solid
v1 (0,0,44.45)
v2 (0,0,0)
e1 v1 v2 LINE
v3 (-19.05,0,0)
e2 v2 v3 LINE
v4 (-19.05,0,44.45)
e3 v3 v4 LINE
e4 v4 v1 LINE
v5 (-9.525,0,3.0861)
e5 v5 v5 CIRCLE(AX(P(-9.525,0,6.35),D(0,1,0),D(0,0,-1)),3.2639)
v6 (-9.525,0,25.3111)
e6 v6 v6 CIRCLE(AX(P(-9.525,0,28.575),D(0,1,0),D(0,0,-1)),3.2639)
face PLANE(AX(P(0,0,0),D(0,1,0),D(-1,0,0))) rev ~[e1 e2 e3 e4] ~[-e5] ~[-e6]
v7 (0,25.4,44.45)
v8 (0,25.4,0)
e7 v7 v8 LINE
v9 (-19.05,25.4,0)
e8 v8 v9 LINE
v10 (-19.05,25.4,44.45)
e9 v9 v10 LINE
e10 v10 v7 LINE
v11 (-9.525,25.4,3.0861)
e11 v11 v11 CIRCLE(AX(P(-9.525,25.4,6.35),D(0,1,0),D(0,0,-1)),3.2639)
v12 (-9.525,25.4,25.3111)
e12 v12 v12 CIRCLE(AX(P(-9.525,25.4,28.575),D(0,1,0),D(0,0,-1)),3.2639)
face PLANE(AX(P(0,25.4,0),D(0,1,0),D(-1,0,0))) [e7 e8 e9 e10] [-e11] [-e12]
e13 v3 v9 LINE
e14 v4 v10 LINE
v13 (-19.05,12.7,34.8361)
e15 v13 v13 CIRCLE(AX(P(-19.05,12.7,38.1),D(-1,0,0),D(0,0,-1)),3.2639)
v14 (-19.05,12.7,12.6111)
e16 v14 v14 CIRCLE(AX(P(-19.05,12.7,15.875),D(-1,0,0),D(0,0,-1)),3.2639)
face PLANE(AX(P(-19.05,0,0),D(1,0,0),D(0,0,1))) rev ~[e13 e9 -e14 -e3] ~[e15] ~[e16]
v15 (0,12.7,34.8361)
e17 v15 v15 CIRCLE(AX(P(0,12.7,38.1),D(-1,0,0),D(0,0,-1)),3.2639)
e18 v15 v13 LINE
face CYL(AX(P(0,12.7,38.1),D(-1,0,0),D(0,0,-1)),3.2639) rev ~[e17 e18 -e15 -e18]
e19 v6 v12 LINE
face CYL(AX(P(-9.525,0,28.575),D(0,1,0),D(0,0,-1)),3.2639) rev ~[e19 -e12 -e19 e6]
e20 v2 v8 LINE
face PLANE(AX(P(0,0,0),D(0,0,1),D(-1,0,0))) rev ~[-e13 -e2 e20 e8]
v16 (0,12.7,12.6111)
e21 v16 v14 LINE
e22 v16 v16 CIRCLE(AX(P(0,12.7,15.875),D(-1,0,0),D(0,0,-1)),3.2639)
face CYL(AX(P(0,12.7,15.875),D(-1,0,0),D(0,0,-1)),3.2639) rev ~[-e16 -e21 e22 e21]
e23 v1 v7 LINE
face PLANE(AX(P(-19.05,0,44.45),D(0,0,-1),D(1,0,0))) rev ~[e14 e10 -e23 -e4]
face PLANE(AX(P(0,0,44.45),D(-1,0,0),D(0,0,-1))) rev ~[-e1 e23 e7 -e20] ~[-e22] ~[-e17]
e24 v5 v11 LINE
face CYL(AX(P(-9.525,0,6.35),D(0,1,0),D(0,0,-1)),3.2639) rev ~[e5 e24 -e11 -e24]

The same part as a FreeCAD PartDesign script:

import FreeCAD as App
import Part
import Sketcher
Q = App.Units.Quantity


def add_polygon(sketch, points):
    """Adds a closed chain of lines whose ends are joined by coincident constraints."""
    first, n = sketch.GeometryCount, len(points)
    for a, b in zip(points, points[1:] + points[:1]):
        sketch.addGeometry(Part.LineSegment(App.Vector(*a, 0), App.Vector(*b, 0)), False)
    for i in range(n):
        sketch.addConstraint(Sketcher.Constraint("Coincident", first + i, 2, first + (i + 1) % n, 1))

doc = App.newDocument("Part")
params = doc.addObject("Spreadsheet::Sheet", "Params")
for row, (alias, value) in enumerate([
    ("sketch1_width", "0.75 in"),
    ("sketch1_height", "1.75 in"),
    ("pad1_length", "1 in"),
    ("sketch2_diameter", "0.257 in"),
    ("hole_diameter", "0.257 in"),
    ("hole_depth", "2 in"),
    ("sketch3_diameter", "0.257 in"),
    ("hole2_diameter", "0.257 in"),
    ("hole2_depth", "2 in"),
    ("sketch4_diameter", "0.257 in"),
    ("hole3_diameter", "0.257 in"),
    ("hole3_depth", "2 in"),
    ("sketch5_diameter", "0.257 in"),
    ("hole4_diameter", "0.257 in"),
    ("hole4_depth", "2 in"),
], start=1):
    params.set(f"A{row}", alias)
    params.set(f"B{row}", "=" + value)
    params.setAlias(f"B{row}", alias)

body = doc.addObject("PartDesign::Body", "Body")

# Sketch on XZ plane
sketch1 = doc.addObject("Sketcher::SketchObject", "Sketch")
body.addObject(sketch1)
sketch1.AttachmentSupport = (doc.XZ_Plane, [""])
sketch1.MapMode = "FlatFace"
add_polygon(sketch1, [(0, 44.45), (0, 0), (-19.05, 0), (-19.05, 44.45)])  # lines 0-3
sketch1.addConstraint([
    Sketcher.Constraint("Vertical", 0),
    Sketcher.Constraint("Horizontal", 1),
    Sketcher.Constraint("Vertical", 2),
    Sketcher.Constraint("Horizontal", 3),
    Sketcher.Constraint("Coincident", 0, 2, -1, 1),
    Sketcher.Constraint("DistanceX", 1, 2, 1, 1, Q("0.75 in")),
    Sketcher.Constraint("DistanceY", 0, 2, 0, 1, Q("1.75 in")),
])
sketch1.setExpression("Constraints[9]", "Params.sketch1_width")
sketch1.setExpression("Constraints[10]", "Params.sketch1_height")
pad1 = doc.addObject("PartDesign::Pad", "Pad")
body.addObject(pad1)
pad1.Profile = sketch1
pad1.setExpression("Length", "Params.pad1_length")
pad1.Reversed = True

# Sketch on YZ plane
sketch2 = doc.addObject("Sketcher::SketchObject", "Sketch001")
body.addObject(sketch2)
sketch2.AttachmentSupport = (doc.YZ_Plane, [""])
sketch2.MapMode = "FlatFace"
sketch2.addGeometry(Part.Circle(App.Vector(12.7, 38.1, 0), App.Vector(0, 0, 1), 3.2639), False)
sketch2.addConstraint([
    Sketcher.Constraint("Diameter", 0, Q("0.257 in")),
    Sketcher.Constraint("DistanceX", -1, 1, 0, 3, Q("0.5 in")),
    Sketcher.Constraint("DistanceY", -1, 1, 0, 3, Q("1.5 in")),
])
sketch2.setExpression("Constraints[0]", "Params.sketch2_diameter")
doc.recompute()
hole = doc.addObject("PartDesign::Hole", "Hole")
body.addObject(hole)
hole.Profile = sketch2
hole.ThreadType = "None"
hole.setExpression("Diameter", "Params.hole_diameter")
hole.DepthType = "Dimension"
hole.setExpression("Depth", "Params.hole_depth")
hole.DrillPoint = "Angled"
hole.DrillPointAngle = 118

# Sketch on XZ plane
sketch3 = doc.addObject("Sketcher::SketchObject", "Sketch002")
body.addObject(sketch3)
sketch3.AttachmentSupport = (doc.XZ_Plane, [""])
sketch3.MapMode = "FlatFace"
sketch3.addGeometry(Part.Circle(App.Vector(-9.525, 28.575, 0), App.Vector(0, 0, 1), 3.2639), False)
sketch3.addConstraint([
    Sketcher.Constraint("Diameter", 0, Q("0.257 in")),
    Sketcher.Constraint("DistanceX", 0, 3, -1, 1, Q("0.375 in")),
    Sketcher.Constraint("DistanceY", -1, 1, 0, 3, Q("1.125 in")),
])
sketch3.setExpression("Constraints[0]", "Params.sketch3_diameter")
doc.recompute()
hole2 = doc.addObject("PartDesign::Hole", "Hole001")
body.addObject(hole2)
hole2.Profile = sketch3
hole2.ThreadType = "None"
hole2.setExpression("Diameter", "Params.hole2_diameter")
hole2.DepthType = "Dimension"
hole2.setExpression("Depth", "Params.hole2_depth")
hole2.DrillPoint = "Angled"
hole2.DrillPointAngle = 118

# Sketch on XZ plane
sketch4 = doc.addObject("Sketcher::SketchObject", "Sketch003")
body.addObject(sketch4)
sketch4.AttachmentSupport = (doc.XZ_Plane, [""])
sketch4.MapMode = "FlatFace"
sketch4.addGeometry(Part.Circle(App.Vector(-9.525, 6.35, 0), App.Vector(0, 0, 1), 3.2639), False)
sketch4.addConstraint([
    Sketcher.Constraint("Diameter", 0, Q("0.257 in")),
    Sketcher.Constraint("DistanceY", -1, 1, 0, 3, Q("0.25 in")),
    Sketcher.Constraint("DistanceX", 0, 3, -1, 1, Q("0.375 in")),
])
sketch4.setExpression("Constraints[0]", "Params.sketch4_diameter")
doc.recompute()
hole3 = doc.addObject("PartDesign::Hole", "Hole002")
body.addObject(hole3)
hole3.Profile = sketch4
hole3.ThreadType = "None"
hole3.setExpression("Diameter", "Params.hole3_diameter")
hole3.DepthType = "Dimension"
hole3.setExpression("Depth", "Params.hole3_depth")
hole3.DrillPoint = "Angled"
hole3.DrillPointAngle = 118

# Sketch on YZ plane
sketch5 = doc.addObject("Sketcher::SketchObject", "Sketch004")
body.addObject(sketch5)
sketch5.AttachmentSupport = (doc.YZ_Plane, [""])
sketch5.MapMode = "FlatFace"
sketch5.addGeometry(Part.Circle(App.Vector(12.7, 15.875, 0), App.Vector(0, 0, 1), 3.2639), False)
sketch5.addConstraint([
    Sketcher.Constraint("Diameter", 0, Q("0.257 in")),
    Sketcher.Constraint("DistanceX", -1, 1, 0, 3, Q("0.5 in")),
    Sketcher.Constraint("DistanceY", -1, 1, 0, 3, Q("0.625 in")),
])
sketch5.setExpression("Constraints[0]", "Params.sketch5_diameter")
doc.recompute()
hole4 = doc.addObject("PartDesign::Hole", "Hole003")
body.addObject(hole4)
hole4.Profile = sketch5
hole4.ThreadType = "None"
hole4.setExpression("Diameter", "Params.hole4_diameter")
hole4.DepthType = "Dimension"
hole4.setExpression("Depth", "Params.hole4_depth")
hole4.DrillPoint = "Angled"
hole4.DrillPointAngle = 118

doc.recompute()
